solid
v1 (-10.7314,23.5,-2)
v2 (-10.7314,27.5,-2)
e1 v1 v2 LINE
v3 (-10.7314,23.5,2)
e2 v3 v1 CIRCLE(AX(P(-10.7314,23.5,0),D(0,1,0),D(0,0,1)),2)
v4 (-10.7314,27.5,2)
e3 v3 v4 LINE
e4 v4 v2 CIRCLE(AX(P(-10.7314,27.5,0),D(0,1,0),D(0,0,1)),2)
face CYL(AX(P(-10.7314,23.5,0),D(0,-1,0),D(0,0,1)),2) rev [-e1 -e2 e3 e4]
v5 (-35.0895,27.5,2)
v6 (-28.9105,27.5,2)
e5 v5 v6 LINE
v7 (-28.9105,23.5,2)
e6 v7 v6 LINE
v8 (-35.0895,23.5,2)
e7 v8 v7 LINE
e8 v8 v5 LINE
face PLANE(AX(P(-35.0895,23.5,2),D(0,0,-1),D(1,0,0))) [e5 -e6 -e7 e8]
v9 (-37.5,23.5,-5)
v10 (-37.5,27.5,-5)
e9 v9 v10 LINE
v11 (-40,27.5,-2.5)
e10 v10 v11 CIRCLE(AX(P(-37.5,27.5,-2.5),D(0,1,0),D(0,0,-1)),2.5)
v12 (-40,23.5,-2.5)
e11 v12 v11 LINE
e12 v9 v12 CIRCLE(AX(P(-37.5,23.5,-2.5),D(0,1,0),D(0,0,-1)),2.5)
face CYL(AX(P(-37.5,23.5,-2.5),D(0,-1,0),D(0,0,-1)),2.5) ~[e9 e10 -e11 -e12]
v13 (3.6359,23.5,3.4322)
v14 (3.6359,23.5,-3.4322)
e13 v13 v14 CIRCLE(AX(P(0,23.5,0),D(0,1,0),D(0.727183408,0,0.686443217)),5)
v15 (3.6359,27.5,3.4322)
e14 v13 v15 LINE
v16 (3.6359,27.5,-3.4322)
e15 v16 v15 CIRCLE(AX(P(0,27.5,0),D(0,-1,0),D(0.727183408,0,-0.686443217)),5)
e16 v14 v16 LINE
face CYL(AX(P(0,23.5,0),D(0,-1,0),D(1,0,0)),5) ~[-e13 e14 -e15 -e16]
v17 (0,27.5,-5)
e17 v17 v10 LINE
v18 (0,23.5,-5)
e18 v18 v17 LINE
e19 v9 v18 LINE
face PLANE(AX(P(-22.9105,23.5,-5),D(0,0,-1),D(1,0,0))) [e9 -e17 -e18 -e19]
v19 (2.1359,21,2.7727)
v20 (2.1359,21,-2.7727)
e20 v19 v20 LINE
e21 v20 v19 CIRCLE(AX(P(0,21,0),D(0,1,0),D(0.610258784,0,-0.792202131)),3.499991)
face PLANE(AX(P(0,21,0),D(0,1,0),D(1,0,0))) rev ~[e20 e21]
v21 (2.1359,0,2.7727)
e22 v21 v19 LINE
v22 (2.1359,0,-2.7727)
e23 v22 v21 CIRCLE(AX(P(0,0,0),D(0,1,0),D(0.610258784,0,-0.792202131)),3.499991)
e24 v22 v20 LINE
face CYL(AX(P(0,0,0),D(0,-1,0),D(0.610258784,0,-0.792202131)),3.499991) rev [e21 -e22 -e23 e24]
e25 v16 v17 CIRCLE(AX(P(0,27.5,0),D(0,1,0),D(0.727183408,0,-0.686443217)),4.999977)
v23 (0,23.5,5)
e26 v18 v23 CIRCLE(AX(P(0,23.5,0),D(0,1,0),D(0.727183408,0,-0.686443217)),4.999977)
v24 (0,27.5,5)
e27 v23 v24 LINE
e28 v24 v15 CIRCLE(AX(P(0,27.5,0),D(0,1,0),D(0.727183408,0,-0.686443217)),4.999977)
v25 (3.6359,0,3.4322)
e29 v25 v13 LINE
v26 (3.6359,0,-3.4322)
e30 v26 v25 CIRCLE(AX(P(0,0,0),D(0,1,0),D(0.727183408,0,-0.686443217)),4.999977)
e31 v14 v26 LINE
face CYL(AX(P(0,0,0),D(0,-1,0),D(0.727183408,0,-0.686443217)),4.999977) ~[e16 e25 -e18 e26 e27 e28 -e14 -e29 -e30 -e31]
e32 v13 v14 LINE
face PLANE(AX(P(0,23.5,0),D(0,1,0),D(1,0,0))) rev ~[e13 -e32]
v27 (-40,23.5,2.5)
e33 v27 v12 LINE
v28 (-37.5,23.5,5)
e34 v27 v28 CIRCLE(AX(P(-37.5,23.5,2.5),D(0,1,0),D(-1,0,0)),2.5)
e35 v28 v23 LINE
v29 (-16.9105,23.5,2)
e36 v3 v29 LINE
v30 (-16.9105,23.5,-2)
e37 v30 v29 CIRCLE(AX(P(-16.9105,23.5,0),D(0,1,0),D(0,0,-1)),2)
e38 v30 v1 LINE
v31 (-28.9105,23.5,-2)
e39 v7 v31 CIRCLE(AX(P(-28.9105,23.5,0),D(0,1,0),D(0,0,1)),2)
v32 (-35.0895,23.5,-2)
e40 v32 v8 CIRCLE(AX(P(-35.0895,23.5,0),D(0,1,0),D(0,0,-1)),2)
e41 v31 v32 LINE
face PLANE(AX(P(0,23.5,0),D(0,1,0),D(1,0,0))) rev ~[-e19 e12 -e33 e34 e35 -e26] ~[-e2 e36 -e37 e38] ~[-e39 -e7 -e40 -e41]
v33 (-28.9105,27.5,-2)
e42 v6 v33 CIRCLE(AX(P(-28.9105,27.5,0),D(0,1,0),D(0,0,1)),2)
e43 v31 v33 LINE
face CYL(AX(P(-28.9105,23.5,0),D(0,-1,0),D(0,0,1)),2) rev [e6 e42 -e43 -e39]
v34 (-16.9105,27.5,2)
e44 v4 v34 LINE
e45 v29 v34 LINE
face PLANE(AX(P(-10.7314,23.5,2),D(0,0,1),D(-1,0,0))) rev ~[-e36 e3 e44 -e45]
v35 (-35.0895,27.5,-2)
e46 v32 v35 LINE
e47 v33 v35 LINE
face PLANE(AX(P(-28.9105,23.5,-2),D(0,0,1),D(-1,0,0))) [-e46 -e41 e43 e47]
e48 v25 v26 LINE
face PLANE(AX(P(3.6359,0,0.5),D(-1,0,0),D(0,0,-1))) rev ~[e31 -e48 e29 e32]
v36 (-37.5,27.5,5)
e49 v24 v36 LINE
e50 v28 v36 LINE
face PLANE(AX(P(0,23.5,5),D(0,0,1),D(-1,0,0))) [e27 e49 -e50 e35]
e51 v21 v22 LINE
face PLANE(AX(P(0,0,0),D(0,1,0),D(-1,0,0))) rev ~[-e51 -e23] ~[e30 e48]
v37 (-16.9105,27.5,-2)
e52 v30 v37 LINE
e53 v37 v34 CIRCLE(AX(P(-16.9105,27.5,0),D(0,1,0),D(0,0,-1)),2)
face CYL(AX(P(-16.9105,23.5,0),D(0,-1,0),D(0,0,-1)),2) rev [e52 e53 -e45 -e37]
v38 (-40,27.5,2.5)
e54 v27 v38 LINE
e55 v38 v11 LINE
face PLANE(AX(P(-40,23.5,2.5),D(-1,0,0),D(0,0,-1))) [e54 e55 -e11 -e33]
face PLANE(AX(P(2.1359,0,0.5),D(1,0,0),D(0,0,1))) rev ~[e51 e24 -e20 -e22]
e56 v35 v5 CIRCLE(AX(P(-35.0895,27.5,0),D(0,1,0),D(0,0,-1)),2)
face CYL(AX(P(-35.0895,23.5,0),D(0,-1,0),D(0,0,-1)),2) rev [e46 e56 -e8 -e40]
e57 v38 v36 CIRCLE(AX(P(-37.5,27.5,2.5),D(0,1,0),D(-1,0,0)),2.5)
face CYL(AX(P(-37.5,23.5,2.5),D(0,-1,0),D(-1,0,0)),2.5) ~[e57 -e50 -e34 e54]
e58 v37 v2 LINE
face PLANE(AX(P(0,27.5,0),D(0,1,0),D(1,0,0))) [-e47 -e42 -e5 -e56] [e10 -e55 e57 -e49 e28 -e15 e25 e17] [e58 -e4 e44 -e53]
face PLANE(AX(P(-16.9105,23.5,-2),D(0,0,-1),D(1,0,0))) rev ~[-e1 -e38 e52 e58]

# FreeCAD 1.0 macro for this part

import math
import FreeCAD as App
import Part
import Sketcher

V = App.Vector

doc = App.newDocument("Part")
params = doc.addObject("Spreadsheet::Sheet", "Params")
for row, (alias, value) in enumerate([
    ("sketch1_radius", "3.5 mm"),
    ("sketch1_radius2", "5 mm"),
    ("pad1_length", "21 mm"),
    ("sketch2_radius", "5 mm"),
    ("pad2_length", "2.5 mm"),
    ("sketch3_radius", "2 mm"),
    ("sketch3_radius2", "2.5 mm"),
    ("sketch3_radius3", "5 mm"),
    ("pad3_length", "4 mm"),
], start=1):
    params.set(f"A{row}", alias)
    params.set(f"B{row}", "=" + value)
    params.setAlias(f"B{row}", alias)

body = doc.addObject("PartDesign::Body", "Body")

# Sketch on XZ plane
sketch1 = doc.addObject("Sketcher::SketchObject", "Sketch")
body.addObject(sketch1)
sketch1.AttachmentSupport = (doc.XZ_Plane, [""])
sketch1.MapMode = "FlatFace"
sketch1.addGeometry([
    Part.ArcOfCircle(Part.Circle(V(0, 0, 0), V(0, 0, 1), 4.999977), math.radians(43.349214), math.radians(316.650786)),
    Part.LineSegment(V(3.6359, 3.4322, 0), V(3.6359, -3.4322, 0)),
    Part.ArcOfCircle(Part.Circle(V(0, 0, 0), V(0, 0, 1), 3.499991), math.radians(52.391783), math.radians(307.608217)),
    Part.LineSegment(V(2.1359, -2.7727, 0), V(2.1359, 2.7727, 0)),
], False)
sketch1.addConstraint([
    Sketcher.Constraint("Coincident", 0, 1, 1, 1),
    Sketcher.Constraint("Coincident", 1, 2, 0, 2),
    Sketcher.Constraint("Coincident", 2, 1, 3, 2),
    Sketcher.Constraint("Coincident", 3, 1, 2, 2),
    Sketcher.Constraint("Vertical", 1),
    Sketcher.Constraint("Vertical", 3),
    Sketcher.Constraint("Coincident", 0, 3, -1, 1),
    Sketcher.Constraint("Coincident", 2, 3, -1, 1),
    Sketcher.Constraint("Radius", 2, 3.5),
    Sketcher.Constraint("Radius", 0, 5.0),
    Sketcher.Constraint("DistanceX", 2, 1, 0, 1, 1.5),
    Sketcher.Constraint("DistanceY", 1, 2, 1, 1, 6.8644),
])
sketch1.setExpression("Constraints[8]", "Params.sketch1_radius")
sketch1.setExpression("Constraints[9]", "Params.sketch1_radius2")
pad1 = doc.addObject("PartDesign::Pad", "Pad")
body.addObject(pad1)
pad1.Profile = sketch1
pad1.setExpression("Length", "Params.pad1_length")
pad1.Reversed = True

# Sketch on XZ plane
sketch2 = doc.addObject("Sketcher::SketchObject", "Sketch001")
body.addObject(sketch2)
sketch2.AttachmentSupport = (doc.XZ_Plane, [""])
sketch2.MapMode = "FlatFace"
sketch2.AttachmentOffset = App.Placement(V(0, 0, -21), App.Rotation())
sketch2.addGeometry([
    Part.ArcOfCircle(Part.Circle(V(0, 0, 0), V(0, 0, 1), 4.999977), math.radians(43.349214), math.radians(316.650786)),
    Part.LineSegment(V(3.6359, 3.4322, 0), V(3.6359, -3.4322, 0)),
], False)
sketch2.addConstraint([
    Sketcher.Constraint("Coincident", 0, 1, 1, 1),
    Sketcher.Constraint("Coincident", 1, 2, 0, 2),
    Sketcher.Constraint("Vertical", 1),
    Sketcher.Constraint("Coincident", 0, 3, -1, 1),
    Sketcher.Constraint("Radius", 0, 5.0),
    Sketcher.Constraint("DistanceY", 1, 2, 1, 1, 6.8644),
])
sketch2.setExpression("Constraints[4]", "Params.sketch2_radius")
pad2 = doc.addObject("PartDesign::Pad", "Pad001")
body.addObject(pad2)
pad2.Profile = sketch2
pad2.setExpression("Length", "Params.pad2_length")
pad2.Reversed = True

# Sketch on XZ plane
sketch3 = doc.addObject("Sketcher::SketchObject", "Sketch002")
body.addObject(sketch3)
sketch3.AttachmentSupport = (doc.XZ_Plane, [""])
sketch3.MapMode = "FlatFace"
sketch3.AttachmentOffset = App.Placement(V(0, 0, -23.5), App.Rotation())
sketch3.addGeometry([
    Part.ArcOfCircle(Part.Circle(V(0, 0, 0), V(0, 0, 1), 4.999977), math.radians(-90), math.radians(90)),  # 0
    Part.LineSegment(V(0, -5, 0), V(-37.5, -5, 0)),  # 1
    Part.ArcOfCircle(Part.Circle(V(-37.5, -2.5, 0), V(0, 0, 1), 2.5), math.radians(180), math.radians(270)),  # 2
    Part.LineSegment(V(-40, -2.5, 0), V(-40, 2.5, 0)),  # 3
    Part.ArcOfCircle(Part.Circle(V(-37.5, 2.5, 0), V(0, 0, 1), 2.5), math.radians(90), math.radians(180)),  # 4
    Part.LineSegment(V(-37.5, 5, 0), V(0, 5, 0)),  # 5
    Part.LineSegment(V(-10.7314, 2, 0), V(-16.9105, 2, 0)),  # 6
    Part.ArcOfCircle(Part.Circle(V(-16.9105, 0, 0), V(0, 0, 1), 2), math.radians(90), math.radians(270)),  # 7
    Part.LineSegment(V(-16.9105, -2, 0), V(-10.7314, -2, 0)),  # 8
    Part.ArcOfCircle(Part.Circle(V(-10.7314, 0, 0), V(0, 0, 1), 2), math.radians(-90), math.radians(90)),  # 9
    Part.ArcOfCircle(Part.Circle(V(-35.0895, 0, 0), V(0, 0, 1), 2), math.radians(90), math.radians(270)),  # 10
    Part.LineSegment(V(-35.0895, -2, 0), V(-28.9105, -2, 0)),  # 11
    Part.ArcOfCircle(Part.Circle(V(-28.9105, 0, 0), V(0, 0, 1), 2), math.radians(-90), math.radians(90)),  # 12
    Part.LineSegment(V(-28.9105, 2, 0), V(-35.0895, 2, 0)),  # 13
], False)
sketch3.addConstraint([
    Sketcher.Constraint("Tangent", 0, 1, 1, 1),
    Sketcher.Constraint("Tangent", 1, 2, 2, 2),
    Sketcher.Constraint("Tangent", 2, 1, 3, 1),
    Sketcher.Constraint("Tangent", 3, 2, 4, 2),
    Sketcher.Constraint("Tangent", 4, 1, 5, 1),
    Sketcher.Constraint("Tangent", 5, 2, 0, 2),
    Sketcher.Constraint("Tangent", 6, 2, 7, 1),
    Sketcher.Constraint("Tangent", 7, 2, 8, 1),
    Sketcher.Constraint("Tangent", 8, 2, 9, 1),
    Sketcher.Constraint("Tangent", 9, 2, 6, 1),
    Sketcher.Constraint("Tangent", 10, 2, 11, 1),
    Sketcher.Constraint("Tangent", 11, 2, 12, 1),
    Sketcher.Constraint("Tangent", 12, 2, 13, 1),
    Sketcher.Constraint("Tangent", 13, 2, 10, 1),
    Sketcher.Constraint("Horizontal", 1),
    Sketcher.Constraint("Vertical", 3),
    Sketcher.Constraint("Horizontal", 5),
    Sketcher.Constraint("Horizontal", 6),
    Sketcher.Constraint("Horizontal", 8),
    Sketcher.Constraint("Horizontal", 11),
    Sketcher.Constraint("Horizontal", 13),
    Sketcher.Constraint("Coincident", 0, 3, -1, 1),
    Sketcher.Constraint("Equal", 2, 4),
    Sketcher.Constraint("Equal", 9, 10),
    Sketcher.Constraint("PointOnObject", 7, 3, -1),
    Sketcher.Constraint("PointOnObject", 10, 3, -1),
    Sketcher.Constraint("Equal", 8, 11),
    Sketcher.Constraint("Radius", 7, 2.0),
    Sketcher.Constraint("Radius", 2, 2.5),
    Sketcher.Constraint("DistanceX", 2, 1, -1, 1, 40.0),
    Sketcher.Constraint("Radius", 0, 5.0),
    Sketcher.Constraint("DistanceX", 12, 3, 7, 3, 12.0),
    Sketcher.Constraint("DistanceX", 6, 2, 6, 1, 6.179),
    Sketcher.Constraint("DistanceX", 7, 3, -1, 1, 16.9105),
])
sketch3.setExpression("Constraints[27]", "Params.sketch3_radius")
sketch3.setExpression("Constraints[28]", "Params.sketch3_radius2")
sketch3.setExpression("Constraints[30]", "Params.sketch3_radius3")
pad3 = doc.addObject("PartDesign::Pad", "Pad002")
body.addObject(pad3)
pad3.Profile = sketch3
pad3.setExpression("Length", "Params.pad3_length")
pad3.Reversed = True

doc.recompute()
